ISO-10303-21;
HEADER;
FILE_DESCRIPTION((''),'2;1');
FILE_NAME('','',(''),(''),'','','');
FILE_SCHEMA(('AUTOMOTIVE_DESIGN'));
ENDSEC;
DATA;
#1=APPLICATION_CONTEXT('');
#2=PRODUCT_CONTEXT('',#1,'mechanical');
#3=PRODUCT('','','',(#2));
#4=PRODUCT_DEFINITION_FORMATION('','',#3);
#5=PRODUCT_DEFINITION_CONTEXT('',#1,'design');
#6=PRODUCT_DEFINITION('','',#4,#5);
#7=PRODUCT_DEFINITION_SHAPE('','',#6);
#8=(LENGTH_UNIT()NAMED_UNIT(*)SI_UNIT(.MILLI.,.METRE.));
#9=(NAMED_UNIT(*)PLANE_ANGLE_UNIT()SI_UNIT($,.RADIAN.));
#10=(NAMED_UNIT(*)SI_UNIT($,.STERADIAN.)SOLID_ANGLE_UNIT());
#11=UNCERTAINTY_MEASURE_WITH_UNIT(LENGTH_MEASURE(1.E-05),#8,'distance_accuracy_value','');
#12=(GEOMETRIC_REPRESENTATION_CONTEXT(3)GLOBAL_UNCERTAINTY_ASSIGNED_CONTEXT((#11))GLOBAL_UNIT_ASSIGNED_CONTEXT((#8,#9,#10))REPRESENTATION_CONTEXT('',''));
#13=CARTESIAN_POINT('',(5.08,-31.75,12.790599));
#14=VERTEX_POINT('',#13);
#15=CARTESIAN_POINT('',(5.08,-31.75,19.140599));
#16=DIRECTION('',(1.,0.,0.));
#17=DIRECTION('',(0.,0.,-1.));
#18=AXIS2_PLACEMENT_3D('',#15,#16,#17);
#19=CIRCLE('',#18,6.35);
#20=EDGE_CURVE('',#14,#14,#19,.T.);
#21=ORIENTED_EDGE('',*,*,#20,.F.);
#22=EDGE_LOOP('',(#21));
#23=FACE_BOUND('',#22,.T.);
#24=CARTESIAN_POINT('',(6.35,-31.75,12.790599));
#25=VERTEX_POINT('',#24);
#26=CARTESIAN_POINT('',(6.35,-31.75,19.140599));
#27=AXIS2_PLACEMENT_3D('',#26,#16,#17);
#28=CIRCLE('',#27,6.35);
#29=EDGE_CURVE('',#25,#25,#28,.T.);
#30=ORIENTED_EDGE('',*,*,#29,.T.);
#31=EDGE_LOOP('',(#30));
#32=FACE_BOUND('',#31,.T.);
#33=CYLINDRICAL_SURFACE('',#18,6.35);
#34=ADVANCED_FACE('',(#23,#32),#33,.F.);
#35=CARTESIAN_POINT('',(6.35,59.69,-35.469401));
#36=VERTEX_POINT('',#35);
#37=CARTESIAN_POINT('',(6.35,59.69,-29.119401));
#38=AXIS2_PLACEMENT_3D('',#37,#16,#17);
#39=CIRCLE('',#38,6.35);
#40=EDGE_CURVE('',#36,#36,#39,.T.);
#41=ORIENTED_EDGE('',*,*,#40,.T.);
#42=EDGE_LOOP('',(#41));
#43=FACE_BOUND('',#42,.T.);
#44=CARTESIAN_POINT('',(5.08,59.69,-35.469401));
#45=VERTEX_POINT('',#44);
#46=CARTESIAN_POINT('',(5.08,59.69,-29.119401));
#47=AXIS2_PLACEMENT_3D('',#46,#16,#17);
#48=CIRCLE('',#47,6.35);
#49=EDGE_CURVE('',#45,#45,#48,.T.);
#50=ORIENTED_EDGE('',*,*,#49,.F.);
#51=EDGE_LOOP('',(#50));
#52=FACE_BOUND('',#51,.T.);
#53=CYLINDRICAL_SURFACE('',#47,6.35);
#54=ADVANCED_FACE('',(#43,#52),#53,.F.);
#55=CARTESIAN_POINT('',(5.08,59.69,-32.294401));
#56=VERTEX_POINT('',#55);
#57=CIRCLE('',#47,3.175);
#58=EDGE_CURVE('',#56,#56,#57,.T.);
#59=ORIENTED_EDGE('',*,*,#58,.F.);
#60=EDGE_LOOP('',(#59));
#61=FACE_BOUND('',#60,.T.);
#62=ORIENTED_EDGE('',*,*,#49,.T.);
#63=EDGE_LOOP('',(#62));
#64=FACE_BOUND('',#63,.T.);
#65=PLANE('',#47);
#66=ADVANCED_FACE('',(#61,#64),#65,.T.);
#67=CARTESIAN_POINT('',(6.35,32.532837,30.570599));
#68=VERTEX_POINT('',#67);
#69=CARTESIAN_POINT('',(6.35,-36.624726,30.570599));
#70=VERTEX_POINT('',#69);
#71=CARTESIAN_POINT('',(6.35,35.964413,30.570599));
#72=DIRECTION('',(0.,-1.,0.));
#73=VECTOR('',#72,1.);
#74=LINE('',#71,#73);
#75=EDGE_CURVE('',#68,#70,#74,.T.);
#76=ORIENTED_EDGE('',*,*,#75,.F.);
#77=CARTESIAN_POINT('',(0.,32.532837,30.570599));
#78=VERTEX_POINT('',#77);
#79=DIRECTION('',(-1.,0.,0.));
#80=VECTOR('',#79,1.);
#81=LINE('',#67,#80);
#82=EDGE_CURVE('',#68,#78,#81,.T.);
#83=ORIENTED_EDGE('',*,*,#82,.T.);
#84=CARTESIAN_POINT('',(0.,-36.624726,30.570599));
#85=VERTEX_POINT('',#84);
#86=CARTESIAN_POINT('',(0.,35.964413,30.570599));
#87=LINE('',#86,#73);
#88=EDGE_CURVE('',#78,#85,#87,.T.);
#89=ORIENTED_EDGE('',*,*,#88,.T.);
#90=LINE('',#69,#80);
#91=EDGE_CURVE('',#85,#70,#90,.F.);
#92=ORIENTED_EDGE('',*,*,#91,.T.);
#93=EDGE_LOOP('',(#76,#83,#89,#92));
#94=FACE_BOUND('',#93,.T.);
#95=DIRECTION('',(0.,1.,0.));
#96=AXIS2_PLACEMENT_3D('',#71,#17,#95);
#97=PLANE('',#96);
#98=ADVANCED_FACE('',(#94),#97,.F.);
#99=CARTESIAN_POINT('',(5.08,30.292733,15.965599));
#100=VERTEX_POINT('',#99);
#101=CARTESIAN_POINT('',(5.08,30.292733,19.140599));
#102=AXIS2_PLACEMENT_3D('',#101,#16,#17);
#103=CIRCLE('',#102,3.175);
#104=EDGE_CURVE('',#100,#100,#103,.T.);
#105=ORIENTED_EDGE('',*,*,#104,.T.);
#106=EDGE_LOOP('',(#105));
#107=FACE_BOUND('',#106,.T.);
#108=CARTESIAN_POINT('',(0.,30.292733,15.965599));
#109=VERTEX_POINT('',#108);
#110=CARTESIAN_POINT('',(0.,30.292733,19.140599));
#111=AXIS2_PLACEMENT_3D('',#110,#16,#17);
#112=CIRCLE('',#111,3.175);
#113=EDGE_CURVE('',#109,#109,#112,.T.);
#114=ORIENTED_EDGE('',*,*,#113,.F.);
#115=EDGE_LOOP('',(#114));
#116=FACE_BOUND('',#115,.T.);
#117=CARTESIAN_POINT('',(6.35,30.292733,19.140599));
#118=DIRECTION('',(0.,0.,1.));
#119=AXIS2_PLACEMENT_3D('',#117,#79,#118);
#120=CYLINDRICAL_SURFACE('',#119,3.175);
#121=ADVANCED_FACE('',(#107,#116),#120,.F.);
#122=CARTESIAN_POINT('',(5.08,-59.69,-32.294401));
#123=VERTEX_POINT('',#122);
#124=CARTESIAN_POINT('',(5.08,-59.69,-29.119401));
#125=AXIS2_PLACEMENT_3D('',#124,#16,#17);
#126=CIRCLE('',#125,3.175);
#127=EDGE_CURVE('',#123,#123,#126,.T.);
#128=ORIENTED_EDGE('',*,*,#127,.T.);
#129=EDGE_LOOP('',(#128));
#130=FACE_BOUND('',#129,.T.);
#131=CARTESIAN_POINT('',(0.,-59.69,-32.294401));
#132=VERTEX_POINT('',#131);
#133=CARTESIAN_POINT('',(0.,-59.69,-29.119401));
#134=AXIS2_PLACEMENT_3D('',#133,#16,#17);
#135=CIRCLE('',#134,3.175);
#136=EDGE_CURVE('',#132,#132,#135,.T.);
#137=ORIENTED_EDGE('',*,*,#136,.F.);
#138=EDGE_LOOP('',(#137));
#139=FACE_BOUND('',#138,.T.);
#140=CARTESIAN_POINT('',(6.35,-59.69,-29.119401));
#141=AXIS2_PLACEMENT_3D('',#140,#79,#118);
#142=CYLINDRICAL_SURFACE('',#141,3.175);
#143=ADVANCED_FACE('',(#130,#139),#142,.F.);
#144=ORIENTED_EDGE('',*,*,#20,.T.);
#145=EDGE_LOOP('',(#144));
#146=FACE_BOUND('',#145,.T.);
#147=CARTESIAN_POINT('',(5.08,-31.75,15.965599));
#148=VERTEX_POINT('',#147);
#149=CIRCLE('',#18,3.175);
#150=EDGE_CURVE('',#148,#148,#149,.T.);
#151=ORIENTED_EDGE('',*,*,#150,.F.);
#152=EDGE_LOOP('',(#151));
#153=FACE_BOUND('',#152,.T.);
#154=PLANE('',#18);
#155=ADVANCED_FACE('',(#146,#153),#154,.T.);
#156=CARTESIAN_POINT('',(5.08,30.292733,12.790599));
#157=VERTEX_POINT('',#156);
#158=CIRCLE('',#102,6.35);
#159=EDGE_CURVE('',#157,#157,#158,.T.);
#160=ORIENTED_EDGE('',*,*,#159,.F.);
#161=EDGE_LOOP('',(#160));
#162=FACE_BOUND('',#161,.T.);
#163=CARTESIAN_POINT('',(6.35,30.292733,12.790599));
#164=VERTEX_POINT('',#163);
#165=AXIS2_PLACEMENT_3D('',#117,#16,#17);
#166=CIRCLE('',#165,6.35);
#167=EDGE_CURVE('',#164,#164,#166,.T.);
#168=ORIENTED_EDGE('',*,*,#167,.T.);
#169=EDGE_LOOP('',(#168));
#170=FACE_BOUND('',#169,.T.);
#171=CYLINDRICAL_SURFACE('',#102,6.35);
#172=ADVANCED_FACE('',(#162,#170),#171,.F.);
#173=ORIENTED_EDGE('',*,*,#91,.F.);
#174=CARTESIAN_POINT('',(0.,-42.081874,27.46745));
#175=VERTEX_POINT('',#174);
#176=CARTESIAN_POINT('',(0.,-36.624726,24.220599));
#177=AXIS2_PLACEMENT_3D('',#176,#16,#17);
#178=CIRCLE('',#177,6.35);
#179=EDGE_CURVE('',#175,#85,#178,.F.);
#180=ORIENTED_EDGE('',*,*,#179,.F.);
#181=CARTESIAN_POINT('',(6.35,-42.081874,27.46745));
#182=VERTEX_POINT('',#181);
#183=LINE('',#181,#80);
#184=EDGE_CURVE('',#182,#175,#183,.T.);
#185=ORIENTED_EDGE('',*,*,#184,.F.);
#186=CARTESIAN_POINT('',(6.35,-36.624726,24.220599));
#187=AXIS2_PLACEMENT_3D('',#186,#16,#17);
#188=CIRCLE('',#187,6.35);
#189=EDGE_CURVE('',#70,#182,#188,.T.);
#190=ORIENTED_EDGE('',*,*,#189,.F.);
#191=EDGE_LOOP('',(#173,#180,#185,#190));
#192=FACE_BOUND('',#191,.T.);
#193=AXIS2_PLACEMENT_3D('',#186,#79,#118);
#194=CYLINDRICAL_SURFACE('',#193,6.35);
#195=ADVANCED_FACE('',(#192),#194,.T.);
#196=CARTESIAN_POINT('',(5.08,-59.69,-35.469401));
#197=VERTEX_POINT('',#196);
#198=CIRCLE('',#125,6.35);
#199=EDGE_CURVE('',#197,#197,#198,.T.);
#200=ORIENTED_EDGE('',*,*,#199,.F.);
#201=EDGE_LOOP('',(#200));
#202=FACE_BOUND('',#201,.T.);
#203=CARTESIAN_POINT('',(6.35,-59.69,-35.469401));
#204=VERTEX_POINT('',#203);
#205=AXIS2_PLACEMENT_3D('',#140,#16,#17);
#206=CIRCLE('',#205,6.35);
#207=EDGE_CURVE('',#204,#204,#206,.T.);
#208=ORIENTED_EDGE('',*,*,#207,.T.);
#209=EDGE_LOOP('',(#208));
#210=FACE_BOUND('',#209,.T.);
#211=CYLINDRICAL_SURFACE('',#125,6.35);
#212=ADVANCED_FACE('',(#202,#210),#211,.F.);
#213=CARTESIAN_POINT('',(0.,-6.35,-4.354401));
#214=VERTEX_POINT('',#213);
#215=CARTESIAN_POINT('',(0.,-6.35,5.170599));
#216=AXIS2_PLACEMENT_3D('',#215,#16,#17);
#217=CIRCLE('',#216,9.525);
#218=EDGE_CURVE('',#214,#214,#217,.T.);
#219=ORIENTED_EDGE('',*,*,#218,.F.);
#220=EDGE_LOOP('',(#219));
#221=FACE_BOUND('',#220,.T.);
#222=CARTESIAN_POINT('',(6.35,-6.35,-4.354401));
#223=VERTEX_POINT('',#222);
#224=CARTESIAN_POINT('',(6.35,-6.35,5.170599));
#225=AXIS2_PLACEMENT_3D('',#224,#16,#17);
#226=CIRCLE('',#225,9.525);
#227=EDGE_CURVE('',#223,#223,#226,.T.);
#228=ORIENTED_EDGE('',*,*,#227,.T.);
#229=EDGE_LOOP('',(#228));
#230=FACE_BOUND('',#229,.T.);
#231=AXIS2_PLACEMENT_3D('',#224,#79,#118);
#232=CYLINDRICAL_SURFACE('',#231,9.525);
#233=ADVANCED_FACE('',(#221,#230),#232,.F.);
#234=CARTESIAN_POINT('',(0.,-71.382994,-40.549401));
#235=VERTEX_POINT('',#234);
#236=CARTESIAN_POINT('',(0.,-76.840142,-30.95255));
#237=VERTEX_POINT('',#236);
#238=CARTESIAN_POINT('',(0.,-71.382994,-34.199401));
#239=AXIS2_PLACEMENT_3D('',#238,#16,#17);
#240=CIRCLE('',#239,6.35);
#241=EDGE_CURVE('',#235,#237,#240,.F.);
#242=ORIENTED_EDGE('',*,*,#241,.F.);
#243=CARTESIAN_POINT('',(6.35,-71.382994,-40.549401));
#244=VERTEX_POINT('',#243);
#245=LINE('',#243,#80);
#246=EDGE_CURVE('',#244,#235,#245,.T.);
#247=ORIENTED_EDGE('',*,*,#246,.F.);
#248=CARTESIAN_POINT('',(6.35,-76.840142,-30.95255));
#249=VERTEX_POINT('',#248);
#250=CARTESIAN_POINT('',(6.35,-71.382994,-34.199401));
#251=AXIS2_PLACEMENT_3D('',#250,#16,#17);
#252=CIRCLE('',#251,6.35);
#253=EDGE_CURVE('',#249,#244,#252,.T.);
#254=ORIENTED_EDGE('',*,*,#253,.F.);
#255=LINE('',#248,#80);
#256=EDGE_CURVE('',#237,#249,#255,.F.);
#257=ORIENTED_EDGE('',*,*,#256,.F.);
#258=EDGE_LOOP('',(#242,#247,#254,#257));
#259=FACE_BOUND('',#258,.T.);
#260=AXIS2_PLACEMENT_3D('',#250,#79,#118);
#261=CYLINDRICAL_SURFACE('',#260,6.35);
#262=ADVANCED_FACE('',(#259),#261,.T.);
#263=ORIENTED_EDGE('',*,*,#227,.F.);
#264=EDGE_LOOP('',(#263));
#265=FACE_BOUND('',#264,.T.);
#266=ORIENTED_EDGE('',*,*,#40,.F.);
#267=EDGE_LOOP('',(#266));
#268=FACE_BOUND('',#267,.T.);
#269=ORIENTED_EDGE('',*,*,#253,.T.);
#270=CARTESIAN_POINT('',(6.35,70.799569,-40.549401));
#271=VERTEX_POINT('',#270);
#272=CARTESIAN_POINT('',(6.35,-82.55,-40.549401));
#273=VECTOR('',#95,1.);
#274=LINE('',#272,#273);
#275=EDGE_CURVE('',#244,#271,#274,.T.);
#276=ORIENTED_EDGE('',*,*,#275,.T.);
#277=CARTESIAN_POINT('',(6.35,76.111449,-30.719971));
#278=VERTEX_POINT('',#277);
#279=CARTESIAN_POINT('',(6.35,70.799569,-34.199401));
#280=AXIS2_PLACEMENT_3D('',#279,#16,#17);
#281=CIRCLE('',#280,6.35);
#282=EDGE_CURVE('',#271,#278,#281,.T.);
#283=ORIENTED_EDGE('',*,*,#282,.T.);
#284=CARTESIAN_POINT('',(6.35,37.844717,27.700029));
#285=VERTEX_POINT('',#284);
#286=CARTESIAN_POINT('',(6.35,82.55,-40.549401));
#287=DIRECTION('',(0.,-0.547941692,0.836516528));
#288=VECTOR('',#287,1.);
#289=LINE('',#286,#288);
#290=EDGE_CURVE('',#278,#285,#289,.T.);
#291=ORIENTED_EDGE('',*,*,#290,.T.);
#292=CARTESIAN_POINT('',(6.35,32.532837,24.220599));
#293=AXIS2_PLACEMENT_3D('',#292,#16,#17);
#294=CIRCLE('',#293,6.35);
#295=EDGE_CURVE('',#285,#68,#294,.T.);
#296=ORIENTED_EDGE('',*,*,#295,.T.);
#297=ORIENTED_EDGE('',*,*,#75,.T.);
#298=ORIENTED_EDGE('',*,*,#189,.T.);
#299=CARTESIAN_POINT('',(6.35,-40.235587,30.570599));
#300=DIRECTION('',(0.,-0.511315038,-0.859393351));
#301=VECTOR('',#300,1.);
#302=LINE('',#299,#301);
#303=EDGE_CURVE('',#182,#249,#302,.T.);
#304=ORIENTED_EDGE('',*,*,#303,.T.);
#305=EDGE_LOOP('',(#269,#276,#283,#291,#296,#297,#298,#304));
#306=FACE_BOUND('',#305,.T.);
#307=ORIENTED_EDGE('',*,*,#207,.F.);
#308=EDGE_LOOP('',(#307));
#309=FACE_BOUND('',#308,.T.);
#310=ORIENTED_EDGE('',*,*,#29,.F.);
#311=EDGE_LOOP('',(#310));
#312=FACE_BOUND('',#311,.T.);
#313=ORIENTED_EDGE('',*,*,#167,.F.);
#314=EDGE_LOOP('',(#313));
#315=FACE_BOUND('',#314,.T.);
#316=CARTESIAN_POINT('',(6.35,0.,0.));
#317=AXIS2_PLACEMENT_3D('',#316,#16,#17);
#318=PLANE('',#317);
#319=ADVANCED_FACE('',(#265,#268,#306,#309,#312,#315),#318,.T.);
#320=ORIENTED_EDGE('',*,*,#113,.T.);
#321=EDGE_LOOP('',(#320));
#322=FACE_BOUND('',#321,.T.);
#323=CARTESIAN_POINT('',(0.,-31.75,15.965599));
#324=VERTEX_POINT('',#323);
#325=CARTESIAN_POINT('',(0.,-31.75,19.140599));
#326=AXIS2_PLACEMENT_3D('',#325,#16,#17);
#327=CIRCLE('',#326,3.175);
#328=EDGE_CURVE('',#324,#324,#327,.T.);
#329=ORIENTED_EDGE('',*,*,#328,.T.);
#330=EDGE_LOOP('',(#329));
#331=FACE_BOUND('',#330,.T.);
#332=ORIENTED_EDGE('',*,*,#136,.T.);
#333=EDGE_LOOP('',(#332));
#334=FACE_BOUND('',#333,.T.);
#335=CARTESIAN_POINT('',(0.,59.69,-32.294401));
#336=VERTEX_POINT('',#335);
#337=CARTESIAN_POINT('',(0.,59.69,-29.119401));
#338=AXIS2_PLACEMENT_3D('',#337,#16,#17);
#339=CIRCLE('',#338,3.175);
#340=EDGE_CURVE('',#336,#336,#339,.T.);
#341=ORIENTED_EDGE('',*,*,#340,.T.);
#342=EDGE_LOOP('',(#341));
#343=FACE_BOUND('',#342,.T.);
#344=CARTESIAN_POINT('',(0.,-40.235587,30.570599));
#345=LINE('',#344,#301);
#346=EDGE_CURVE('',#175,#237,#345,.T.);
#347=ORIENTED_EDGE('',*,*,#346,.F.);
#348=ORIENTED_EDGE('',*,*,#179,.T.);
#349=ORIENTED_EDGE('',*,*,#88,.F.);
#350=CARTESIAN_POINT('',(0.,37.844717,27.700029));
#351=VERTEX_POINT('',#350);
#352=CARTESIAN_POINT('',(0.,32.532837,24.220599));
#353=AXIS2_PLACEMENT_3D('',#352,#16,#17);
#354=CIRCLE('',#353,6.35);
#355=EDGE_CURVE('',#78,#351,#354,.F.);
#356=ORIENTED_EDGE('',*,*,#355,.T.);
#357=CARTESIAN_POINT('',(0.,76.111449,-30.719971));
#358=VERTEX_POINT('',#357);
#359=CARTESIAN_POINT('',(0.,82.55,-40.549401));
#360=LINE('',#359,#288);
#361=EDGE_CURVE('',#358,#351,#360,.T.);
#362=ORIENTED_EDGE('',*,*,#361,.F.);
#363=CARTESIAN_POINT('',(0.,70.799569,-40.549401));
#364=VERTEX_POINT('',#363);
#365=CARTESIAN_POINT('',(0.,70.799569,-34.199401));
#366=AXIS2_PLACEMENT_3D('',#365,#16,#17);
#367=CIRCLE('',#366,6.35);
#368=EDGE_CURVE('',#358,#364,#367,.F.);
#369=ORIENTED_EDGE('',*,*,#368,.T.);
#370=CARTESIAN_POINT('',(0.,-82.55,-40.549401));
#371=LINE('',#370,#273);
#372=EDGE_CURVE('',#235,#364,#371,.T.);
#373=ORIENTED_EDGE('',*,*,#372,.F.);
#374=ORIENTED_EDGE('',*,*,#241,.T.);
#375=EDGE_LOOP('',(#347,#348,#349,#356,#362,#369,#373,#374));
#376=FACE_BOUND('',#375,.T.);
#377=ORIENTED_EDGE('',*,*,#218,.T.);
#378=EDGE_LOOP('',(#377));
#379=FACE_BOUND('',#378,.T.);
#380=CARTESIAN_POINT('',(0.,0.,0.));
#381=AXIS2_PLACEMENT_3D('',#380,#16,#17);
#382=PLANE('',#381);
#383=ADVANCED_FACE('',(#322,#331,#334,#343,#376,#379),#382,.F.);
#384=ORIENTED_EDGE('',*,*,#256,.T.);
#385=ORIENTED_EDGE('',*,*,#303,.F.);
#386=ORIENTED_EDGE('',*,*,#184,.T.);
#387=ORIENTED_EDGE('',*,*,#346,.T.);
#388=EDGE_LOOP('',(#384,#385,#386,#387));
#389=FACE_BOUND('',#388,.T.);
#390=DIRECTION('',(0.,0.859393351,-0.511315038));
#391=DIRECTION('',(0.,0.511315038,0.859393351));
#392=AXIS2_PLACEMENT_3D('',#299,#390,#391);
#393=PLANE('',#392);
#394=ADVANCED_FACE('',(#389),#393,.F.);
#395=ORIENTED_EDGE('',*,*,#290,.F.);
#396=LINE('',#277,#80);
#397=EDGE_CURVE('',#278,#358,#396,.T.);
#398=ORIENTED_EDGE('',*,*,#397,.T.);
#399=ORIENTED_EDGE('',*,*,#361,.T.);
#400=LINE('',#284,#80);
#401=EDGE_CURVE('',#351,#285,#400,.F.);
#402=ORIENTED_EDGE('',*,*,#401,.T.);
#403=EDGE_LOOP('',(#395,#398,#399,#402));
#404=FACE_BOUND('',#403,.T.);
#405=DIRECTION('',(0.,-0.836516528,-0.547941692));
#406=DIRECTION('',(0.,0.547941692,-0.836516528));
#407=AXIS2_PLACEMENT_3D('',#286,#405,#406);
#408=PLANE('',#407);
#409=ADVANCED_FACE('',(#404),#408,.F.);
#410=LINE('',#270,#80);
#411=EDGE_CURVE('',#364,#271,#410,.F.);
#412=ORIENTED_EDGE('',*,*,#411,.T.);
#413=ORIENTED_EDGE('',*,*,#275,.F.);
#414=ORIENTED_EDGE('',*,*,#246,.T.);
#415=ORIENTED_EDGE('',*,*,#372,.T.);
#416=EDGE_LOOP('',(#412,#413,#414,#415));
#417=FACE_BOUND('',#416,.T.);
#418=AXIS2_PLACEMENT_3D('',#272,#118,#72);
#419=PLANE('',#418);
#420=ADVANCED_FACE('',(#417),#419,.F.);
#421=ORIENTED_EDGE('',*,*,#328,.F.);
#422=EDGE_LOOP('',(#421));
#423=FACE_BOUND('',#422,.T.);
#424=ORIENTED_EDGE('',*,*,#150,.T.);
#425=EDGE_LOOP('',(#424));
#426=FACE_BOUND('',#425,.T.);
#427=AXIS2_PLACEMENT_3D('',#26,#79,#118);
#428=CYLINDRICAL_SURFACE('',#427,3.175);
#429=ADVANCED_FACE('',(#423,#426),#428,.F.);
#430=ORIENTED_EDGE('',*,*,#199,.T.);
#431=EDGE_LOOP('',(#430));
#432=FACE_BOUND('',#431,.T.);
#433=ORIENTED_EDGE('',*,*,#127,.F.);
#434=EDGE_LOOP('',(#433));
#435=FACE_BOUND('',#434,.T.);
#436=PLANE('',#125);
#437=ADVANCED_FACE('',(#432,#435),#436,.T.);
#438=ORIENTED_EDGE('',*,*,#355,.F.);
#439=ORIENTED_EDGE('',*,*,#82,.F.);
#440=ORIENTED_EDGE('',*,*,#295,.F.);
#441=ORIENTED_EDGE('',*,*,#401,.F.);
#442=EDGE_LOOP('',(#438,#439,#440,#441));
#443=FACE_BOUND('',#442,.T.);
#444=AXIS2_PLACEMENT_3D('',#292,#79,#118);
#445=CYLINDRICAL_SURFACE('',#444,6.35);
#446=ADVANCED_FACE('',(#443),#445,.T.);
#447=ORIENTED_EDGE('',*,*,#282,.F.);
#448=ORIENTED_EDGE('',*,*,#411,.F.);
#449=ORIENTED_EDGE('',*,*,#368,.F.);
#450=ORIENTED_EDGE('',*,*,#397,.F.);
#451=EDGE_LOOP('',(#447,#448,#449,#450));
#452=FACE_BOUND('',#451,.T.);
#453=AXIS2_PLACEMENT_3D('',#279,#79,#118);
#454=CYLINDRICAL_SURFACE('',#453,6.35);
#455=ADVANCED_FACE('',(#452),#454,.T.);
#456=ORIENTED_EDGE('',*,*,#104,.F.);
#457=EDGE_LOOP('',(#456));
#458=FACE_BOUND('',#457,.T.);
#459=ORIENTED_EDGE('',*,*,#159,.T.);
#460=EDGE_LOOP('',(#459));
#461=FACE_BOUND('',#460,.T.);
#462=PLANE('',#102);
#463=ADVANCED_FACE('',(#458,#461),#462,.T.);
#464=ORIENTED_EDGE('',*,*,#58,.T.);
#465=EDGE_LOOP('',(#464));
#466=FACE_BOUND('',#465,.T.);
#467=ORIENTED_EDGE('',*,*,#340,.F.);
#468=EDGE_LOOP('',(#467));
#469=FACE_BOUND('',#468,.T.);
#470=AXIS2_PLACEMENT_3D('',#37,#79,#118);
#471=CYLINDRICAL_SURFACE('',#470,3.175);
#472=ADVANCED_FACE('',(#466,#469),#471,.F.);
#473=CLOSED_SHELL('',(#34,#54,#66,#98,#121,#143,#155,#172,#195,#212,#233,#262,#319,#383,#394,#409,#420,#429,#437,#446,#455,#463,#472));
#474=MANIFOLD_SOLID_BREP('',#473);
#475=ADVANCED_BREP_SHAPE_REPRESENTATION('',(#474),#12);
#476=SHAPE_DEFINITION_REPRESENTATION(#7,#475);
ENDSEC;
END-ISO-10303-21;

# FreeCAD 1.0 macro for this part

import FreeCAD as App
import Part
import Sketcher
Q = App.Units.Quantity


def edges_at(feature, points):
    """Names of the edges that pass closest to the given points."""
    edges = feature.Shape.Edges
    near = lambda p: min(range(len(edges)), key=lambda i: edges[i].distToShape(Part.Vertex(*p))[0])
    return sorted({f"Edge{near(p) + 1}" for p in points})


def add_polygon(sketch, points):
    """Adds a closed chain of lines whose ends are joined by coincident constraints."""
    first, n = sketch.GeometryCount, len(points)
    for a, b in zip(points, points[1:] + points[:1]):
        sketch.addGeometry(Part.LineSegment(App.Vector(*a, 0), App.Vector(*b, 0)), False)
    for i in range(n):
        sketch.addConstraint(Sketcher.Constraint("Coincident", first + i, 2, first + (i + 1) % n, 1))

doc = App.newDocument("Part")
body = doc.addObject("PartDesign::Body", "Body")

# Sketch on YZ plane
sketch1 = doc.addObject("Sketcher::SketchObject", "Sketch")
body.addObject(sketch1)
sketch1.AttachmentSupport = (doc.YZ_Plane, [""])
sketch1.MapMode = "FlatFace"
add_polygon(sketch1, [(36, 30.6), (-40.2, 30.6), (-82.5, -40.5), (82.5, -40.5)])  # lines 0-3
sketch1.addGeometry(Part.Circle(App.Vector(-31.8, 19.1, 0), App.Vector(0, 0, 1), 3.2), False)  # 4
sketch1.addGeometry(Part.Circle(App.Vector(-6.3, 5.2, 0), App.Vector(0, 0, 1), 9.5), False)  # 5
sketch1.addGeometry(Part.Circle(App.Vector(-59.7, -29.1, 0), App.Vector(0, 0, 1), 3.2), False)  # 6
sketch1.addGeometry(Part.Circle(App.Vector(30.3, 19.1, 0), App.Vector(0, 0, 1), 3.2), False)  # 7
sketch1.addGeometry(Part.Circle(App.Vector(59.7, -29.1, 0), App.Vector(0, 0, 1), 3.2), False)  # 8
sketch1.addConstraint([
    Sketcher.Constraint("Horizontal", 0),
    Sketcher.Constraint("Horizontal", 2),
    Sketcher.Constraint("Equal", 4, 6),
    Sketcher.Constraint("Equal", 6, 7),
    Sketcher.Constraint("Equal", 7, 8),
    Sketcher.Constraint("Symmetric", 6, 3, 8, 3, -2),
    Sketcher.Constraint("Horizontal", 4, 3, 7, 3),
    Sketcher.Constraint("Diameter", 4, Q("0.25 in")),
    Sketcher.Constraint("Diameter", 5, Q("0.75 in")),
    Sketcher.Constraint("DistanceX", 0, 2, 0, 1, Q("3 in")),
    Sketcher.Constraint("DistanceX", 2, 1, 2, 2, Q("6.5 in")),
    Sketcher.Constraint("DistanceX", 4, 3, 5, 3, Q("1 in")),
    Sketcher.Constraint("DistanceY", 5, 3, 0, 2, Q("1 in")),
    Sketcher.Constraint("DistanceX", 1, 2, 4, 3, Q("2 in")),
    Sketcher.Constraint("DistanceX", 6, 3, 4, 3, Q("1.1 in")),
    Sketcher.Constraint("DistanceY", 6, 3, 4, 3, Q("1.9 in")),
    Sketcher.Constraint("DistanceX", 5, 3, 8, 3, Q("2.6 in")),
    Sketcher.Constraint("DistanceY", 1, 2, 0, 2, Q("2.8 in")),
    Sketcher.Constraint("DistanceY", 5, 3, 4, 3, Q("0.55 in")),
    Sketcher.Constraint("DistanceY", -1, 1, 4, 3, 19.140599),
    Sketcher.Constraint("Distance", 1, 82.756051),
    Sketcher.Constraint("DistanceX", 0, 2, 7, 3, 70.528319),
])
pad1 = doc.addObject("PartDesign::Pad", "Pad")
body.addObject(pad1)
pad1.Profile = sketch1
pad1.Length = Q("0.25 in")

# Sketch on YZ plane
sketch2 = doc.addObject("Sketcher::SketchObject", "Sketch001")
body.addObject(sketch2)
sketch2.AttachmentSupport = (doc.YZ_Plane, [""])
sketch2.MapMode = "FlatFace"
sketch2.AttachmentOffset = App.Placement(App.Vector(0, 0, 0.25 * 25.4), App.Rotation())
sketch2.addGeometry([
    Part.Circle(App.Vector(30, 19, 0), App.Vector(0, 0, 1), 6),
    Part.Circle(App.Vector(60, -29, 0), App.Vector(0, 0, 1), 6),
    Part.Circle(App.Vector(-32, 19, 0), App.Vector(0, 0, 1), 6),
    Part.Circle(App.Vector(-60, -29, 0), App.Vector(0, 0, 1), 6),
], False)
sketch2.addConstraint([
    Sketcher.Constraint("Equal", 0, 1),
    Sketcher.Constraint("Equal", 1, 2),
    Sketcher.Constraint("Equal", 2, 3),
    Sketcher.Constraint("Symmetric", 1, 3, 3, 3, -2),
    Sketcher.Constraint("Horizontal", 0, 3, 2, 3),
    Sketcher.Constraint("Diameter", 0, Q("0.5 in")),
    Sketcher.Constraint("DistanceY", 1, 3, 0, 3, Q("1.9 in")),
    Sketcher.Constraint("DistanceX", 2, 3, 1, 3, Q("3.6 in")),
    Sketcher.Constraint("DistanceX", 3, 3, 2, 3, Q("1.1 in")),
    Sketcher.Constraint("DistanceY", -1, 1, 0, 3, 19.140599),
    Sketcher.Constraint("DistanceX", -1, 1, 0, 3, 30.292733),
])
pocket1 = doc.addObject("PartDesign::Pocket", "Pocket")
body.addObject(pocket1)
pocket1.Profile = sketch2
pocket1.Length = Q("0.05 in")
doc.recompute()

fillet = doc.addObject("PartDesign::Fillet", "Fillet")
body.addObject(fillet)
fillet.Base = (pocket1, edges_at(pocket1, [
    (3.175, 82.55, -40.549),
    (3.175, -82.55, -40.549),
    (3.175, -40.236, 30.571),
    (3.175, 35.964, 30.571),
]))
fillet.Radius = Q("0.25 in")

doc.recompute()
